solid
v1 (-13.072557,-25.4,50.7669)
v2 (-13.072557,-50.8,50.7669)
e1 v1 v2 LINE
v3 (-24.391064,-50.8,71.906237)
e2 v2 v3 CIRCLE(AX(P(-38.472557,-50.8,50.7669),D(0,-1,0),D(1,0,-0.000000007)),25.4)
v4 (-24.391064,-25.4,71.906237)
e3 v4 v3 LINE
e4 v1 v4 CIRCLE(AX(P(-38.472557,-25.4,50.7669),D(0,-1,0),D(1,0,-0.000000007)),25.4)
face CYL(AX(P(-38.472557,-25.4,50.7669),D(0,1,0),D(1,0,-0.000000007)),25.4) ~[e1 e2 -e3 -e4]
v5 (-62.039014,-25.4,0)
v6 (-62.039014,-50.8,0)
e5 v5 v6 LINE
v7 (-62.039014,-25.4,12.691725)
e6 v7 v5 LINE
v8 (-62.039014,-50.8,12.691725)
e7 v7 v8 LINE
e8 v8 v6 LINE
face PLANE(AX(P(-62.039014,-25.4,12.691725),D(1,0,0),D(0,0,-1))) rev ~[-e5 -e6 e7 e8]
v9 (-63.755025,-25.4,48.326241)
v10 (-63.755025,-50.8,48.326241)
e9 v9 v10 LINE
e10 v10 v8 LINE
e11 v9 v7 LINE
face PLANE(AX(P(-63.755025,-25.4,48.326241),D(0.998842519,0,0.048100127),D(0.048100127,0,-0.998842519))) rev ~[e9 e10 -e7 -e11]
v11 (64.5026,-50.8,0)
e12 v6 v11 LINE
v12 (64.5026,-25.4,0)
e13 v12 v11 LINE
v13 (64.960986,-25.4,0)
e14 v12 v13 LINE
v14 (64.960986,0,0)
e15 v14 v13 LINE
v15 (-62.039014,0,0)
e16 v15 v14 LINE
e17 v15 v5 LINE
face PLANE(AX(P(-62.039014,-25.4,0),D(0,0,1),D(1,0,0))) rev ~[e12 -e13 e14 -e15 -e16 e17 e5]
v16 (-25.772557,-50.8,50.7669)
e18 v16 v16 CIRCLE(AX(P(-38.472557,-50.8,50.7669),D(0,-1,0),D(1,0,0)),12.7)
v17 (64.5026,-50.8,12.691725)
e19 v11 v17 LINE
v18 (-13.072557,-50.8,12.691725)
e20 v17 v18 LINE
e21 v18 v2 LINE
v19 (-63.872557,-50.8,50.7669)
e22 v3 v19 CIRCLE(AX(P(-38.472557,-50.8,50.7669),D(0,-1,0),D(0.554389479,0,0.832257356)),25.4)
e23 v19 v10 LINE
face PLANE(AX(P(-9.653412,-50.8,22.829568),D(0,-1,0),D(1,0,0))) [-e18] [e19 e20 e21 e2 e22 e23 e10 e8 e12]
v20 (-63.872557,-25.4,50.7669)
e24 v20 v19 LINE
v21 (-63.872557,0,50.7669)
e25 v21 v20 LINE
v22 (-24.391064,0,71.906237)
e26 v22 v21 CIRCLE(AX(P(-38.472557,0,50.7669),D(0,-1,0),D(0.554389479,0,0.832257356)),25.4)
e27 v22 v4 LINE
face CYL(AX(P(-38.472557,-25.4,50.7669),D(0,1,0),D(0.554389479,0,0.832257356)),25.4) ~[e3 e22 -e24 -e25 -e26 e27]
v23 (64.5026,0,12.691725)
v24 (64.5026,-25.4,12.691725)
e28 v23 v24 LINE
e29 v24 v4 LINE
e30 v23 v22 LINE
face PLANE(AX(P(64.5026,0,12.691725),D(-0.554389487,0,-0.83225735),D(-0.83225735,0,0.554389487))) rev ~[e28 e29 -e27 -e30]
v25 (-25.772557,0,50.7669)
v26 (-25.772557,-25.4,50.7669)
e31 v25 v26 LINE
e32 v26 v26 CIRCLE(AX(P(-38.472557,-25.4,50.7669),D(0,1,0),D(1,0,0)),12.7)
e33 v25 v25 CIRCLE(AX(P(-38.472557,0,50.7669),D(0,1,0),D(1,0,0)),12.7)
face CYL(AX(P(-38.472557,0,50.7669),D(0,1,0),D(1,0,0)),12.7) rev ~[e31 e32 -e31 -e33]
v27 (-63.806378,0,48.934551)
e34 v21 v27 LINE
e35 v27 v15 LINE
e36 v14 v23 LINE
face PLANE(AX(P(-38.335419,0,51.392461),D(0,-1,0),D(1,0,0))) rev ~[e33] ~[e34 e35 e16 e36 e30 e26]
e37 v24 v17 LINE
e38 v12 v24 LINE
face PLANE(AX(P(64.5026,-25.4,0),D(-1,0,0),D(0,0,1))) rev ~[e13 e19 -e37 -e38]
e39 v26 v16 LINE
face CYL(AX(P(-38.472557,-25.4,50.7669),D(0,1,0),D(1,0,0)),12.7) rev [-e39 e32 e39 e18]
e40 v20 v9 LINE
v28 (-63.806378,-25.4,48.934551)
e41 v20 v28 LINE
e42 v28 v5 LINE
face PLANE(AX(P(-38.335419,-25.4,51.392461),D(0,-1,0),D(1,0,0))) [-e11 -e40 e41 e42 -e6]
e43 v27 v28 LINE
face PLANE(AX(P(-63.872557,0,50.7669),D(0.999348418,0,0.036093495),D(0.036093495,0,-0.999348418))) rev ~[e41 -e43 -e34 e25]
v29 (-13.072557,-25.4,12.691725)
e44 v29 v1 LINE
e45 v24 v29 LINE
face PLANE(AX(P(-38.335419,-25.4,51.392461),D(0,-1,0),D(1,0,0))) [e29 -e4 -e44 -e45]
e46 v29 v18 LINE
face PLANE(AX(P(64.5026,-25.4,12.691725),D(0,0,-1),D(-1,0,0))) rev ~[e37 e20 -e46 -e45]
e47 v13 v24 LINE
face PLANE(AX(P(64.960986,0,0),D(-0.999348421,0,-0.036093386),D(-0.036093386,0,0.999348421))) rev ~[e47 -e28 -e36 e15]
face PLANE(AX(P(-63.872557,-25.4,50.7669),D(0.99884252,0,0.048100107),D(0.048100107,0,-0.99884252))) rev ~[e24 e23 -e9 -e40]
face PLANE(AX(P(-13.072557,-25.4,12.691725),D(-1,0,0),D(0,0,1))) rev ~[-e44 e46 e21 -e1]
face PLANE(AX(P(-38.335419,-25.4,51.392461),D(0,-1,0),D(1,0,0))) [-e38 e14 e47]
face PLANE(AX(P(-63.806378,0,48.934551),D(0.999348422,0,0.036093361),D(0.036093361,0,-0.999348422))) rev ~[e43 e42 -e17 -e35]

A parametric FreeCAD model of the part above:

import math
import FreeCAD as App
import Part
import Sketcher

V = App.Vector
Q = App.Units.Quantity

doc = App.newDocument("Part")
body = doc.addObject("PartDesign::Body", "Body")

sketch1 = body.newObject("Sketcher::SketchObject", "Sketch")
sketch1.AttachmentSupport = (doc.getObject("XZ_Plane"), [""])
sketch1.MapMode = "FlatFace"
sketch1.addGeometry([
    Part.ArcOfCircle(Part.Circle(V(-38.472557, 50.7669, 0), V(0, 0, 1), 25.4), math.radians(56.331326), math.radians(180)),
    Part.LineSegment(V(-63.872557, 50.7669, 0), V(-63.806378, 48.934551, 0)),
    Part.LineSegment(V(-63.806378, 48.934551, 0), V(-62.039014, 0, 0)),
    Part.LineSegment(V(-62.039014, 0, 0), V(64.960986, 0, 0)),
    Part.LineSegment(V(64.960986, 0, 0), V(64.5026, 12.691725, 0)),
    Part.LineSegment(V(64.5026, 12.691725, 0), V(-24.391064, 71.906237, 0)),
    Part.Circle(V(-38.472557, 50.7669, 0), V(0, 0, 1), 12.7),
], False)
sketch1.addConstraint([
    Sketcher.Constraint("Coincident", 0, 2, 1, 1),
    Sketcher.Constraint("Coincident", 1, 2, 2, 1),
    Sketcher.Constraint("Coincident", 2, 2, 3, 1),
    Sketcher.Constraint("Coincident", 3, 2, 4, 1),
    Sketcher.Constraint("Coincident", 4, 2, 5, 1),
    Sketcher.Constraint("Tangent", 5, 2, 0, 1),
    Sketcher.Constraint("Horizontal", 3),
    Sketcher.Constraint("Coincident", 6, 3, 0, 3),
    Sketcher.Constraint("PointOnObject", 2, 2, -1),
    Sketcher.Constraint("Parallel", 1, 2),
    Sketcher.Constraint("Parallel", 2, 4),
    Sketcher.Constraint("Horizontal", 6, 3, 0, 2),
    Sketcher.Constraint("Diameter", 6, Q("1 in")),
    Sketcher.Constraint("Radius", 0, Q("1 in")),
    Sketcher.Constraint("DistanceX", 3, 1, 3, 2, Q("5 in")),
    Sketcher.Constraint("Distance", 4, Q("0.5 in")),
    Sketcher.Constraint("DistanceY", -1, 1, 0, 3, Q("50.7669 mm")),
    Sketcher.Constraint("DistanceX", -1, 1, 4, 2, Q("64.5026 mm")),
    Sketcher.Constraint("Distance", 5, Q("106.810308 mm")),
    Sketcher.Constraint("DistanceX", 1, 2, -1, 1, Q("63.806378 mm")),
])
pad1 = body.newObject("PartDesign::Pad", "Pad")
pad1.Profile = sketch1
pad1.Length = Q("1 in")

sketch2 = body.newObject("Sketcher::SketchObject", "Sketch001")
sketch2.AttachmentSupport = (doc.getObject("XZ_Plane"), [""])
sketch2.MapMode = "FlatFace"
sketch2.AttachmentOffset = App.Placement(V(0, 0, 1 * 25.4), App.Rotation())
sketch2.addGeometry([
    Part.LineSegment(V(-13.072557, 12.691725, 0), V(-13.072557, 50.7669, 0)),
    Part.ArcOfCircle(Part.Circle(V(-38.472557, 50.7669, 0), V(0, 0, 1), 25.4), math.radians(0), math.radians(56.331325)),
    Part.ArcOfCircle(Part.Circle(V(-38.472557, 50.7669, 0), V(0, 0, 1), 25.4), math.radians(56.331326), math.radians(180)),
    Part.LineSegment(V(-63.872557, 50.7669, 0), V(-63.755025, 48.326241, 0)),
    Part.LineSegment(V(-63.755025, 48.326241, 0), V(-62.039014, 12.691725, 0)),
    Part.LineSegment(V(-62.039014, 12.691725, 0), V(-62.039014, 0, 0)),
    Part.LineSegment(V(-62.039014, 0, 0), V(64.5026, 0, 0)),
    Part.LineSegment(V(64.5026, 0, 0), V(64.5026, 12.691725, 0)),
    Part.LineSegment(V(64.5026, 12.691725, 0), V(-13.072557, 12.691725, 0)),
    Part.Circle(V(-38.472557, 50.7669, 0), V(0, 0, 1), 12.7),
], False)
sketch2.addConstraint([
    Sketcher.Constraint("Tangent", 0, 2, 1, 1),
    Sketcher.Constraint("Tangent", 1, 2, 2, 1),
    Sketcher.Constraint("Coincident", 2, 2, 3, 1),
    Sketcher.Constraint("Coincident", 3, 2, 4, 1),
    Sketcher.Constraint("Coincident", 4, 2, 5, 1),
    Sketcher.Constraint("Coincident", 5, 2, 6, 1),
    Sketcher.Constraint("Coincident", 6, 2, 7, 1),
    Sketcher.Constraint("Coincident", 7, 2, 8, 1),
    Sketcher.Constraint("Coincident", 8, 2, 0, 1),
    Sketcher.Constraint("Vertical", 0),
    Sketcher.Constraint("Vertical", 5),
    Sketcher.Constraint("Horizontal", 6),
    Sketcher.Constraint("Vertical", 7),
    Sketcher.Constraint("Horizontal", 8),
    Sketcher.Constraint("Coincident", 9, 3, 1, 3),
    Sketcher.Constraint("Equal", 1, 2),
    Sketcher.Constraint("PointOnObject", 5, 2, -1),
    Sketcher.Constraint("Parallel", 3, 4),
    Sketcher.Constraint("Horizontal", 0, 2, 2, 2),
    Sketcher.Constraint("Horizontal", 4, 2, 7, 2),
    Sketcher.Constraint("Diameter", 9, Q("1 in")),
    Sketcher.Constraint("Radius", 1, Q("1 in")),
    Sketcher.Constraint("DistanceY", -1, 1, 1, 3, Q("50.7669 mm")),
    Sketcher.Constraint("DistanceX", -1, 1, 6, 2, Q("64.5026 mm")),
    Sketcher.Constraint("Distance", 4, Q("35.67581 mm")),
    Sketcher.Constraint("DistanceX", 6, 1, 6, 2, Q("126.541614 mm")),
    Sketcher.Constraint("DistanceX", 8, 2, 8, 1, Q("77.575157 mm")),
    Sketcher.Constraint("DistanceY", 0, 1, 0, 2, Q("38.075175 mm")),
    Sketcher.Constraint("DistanceX", 3, 2, 1, 2, Q("39.363961 mm")),
])
pad2 = body.newObject("PartDesign::Pad", "Pad001")
pad2.Profile = sketch2
pad2.Length = Q("1 in")

doc.recompute()
